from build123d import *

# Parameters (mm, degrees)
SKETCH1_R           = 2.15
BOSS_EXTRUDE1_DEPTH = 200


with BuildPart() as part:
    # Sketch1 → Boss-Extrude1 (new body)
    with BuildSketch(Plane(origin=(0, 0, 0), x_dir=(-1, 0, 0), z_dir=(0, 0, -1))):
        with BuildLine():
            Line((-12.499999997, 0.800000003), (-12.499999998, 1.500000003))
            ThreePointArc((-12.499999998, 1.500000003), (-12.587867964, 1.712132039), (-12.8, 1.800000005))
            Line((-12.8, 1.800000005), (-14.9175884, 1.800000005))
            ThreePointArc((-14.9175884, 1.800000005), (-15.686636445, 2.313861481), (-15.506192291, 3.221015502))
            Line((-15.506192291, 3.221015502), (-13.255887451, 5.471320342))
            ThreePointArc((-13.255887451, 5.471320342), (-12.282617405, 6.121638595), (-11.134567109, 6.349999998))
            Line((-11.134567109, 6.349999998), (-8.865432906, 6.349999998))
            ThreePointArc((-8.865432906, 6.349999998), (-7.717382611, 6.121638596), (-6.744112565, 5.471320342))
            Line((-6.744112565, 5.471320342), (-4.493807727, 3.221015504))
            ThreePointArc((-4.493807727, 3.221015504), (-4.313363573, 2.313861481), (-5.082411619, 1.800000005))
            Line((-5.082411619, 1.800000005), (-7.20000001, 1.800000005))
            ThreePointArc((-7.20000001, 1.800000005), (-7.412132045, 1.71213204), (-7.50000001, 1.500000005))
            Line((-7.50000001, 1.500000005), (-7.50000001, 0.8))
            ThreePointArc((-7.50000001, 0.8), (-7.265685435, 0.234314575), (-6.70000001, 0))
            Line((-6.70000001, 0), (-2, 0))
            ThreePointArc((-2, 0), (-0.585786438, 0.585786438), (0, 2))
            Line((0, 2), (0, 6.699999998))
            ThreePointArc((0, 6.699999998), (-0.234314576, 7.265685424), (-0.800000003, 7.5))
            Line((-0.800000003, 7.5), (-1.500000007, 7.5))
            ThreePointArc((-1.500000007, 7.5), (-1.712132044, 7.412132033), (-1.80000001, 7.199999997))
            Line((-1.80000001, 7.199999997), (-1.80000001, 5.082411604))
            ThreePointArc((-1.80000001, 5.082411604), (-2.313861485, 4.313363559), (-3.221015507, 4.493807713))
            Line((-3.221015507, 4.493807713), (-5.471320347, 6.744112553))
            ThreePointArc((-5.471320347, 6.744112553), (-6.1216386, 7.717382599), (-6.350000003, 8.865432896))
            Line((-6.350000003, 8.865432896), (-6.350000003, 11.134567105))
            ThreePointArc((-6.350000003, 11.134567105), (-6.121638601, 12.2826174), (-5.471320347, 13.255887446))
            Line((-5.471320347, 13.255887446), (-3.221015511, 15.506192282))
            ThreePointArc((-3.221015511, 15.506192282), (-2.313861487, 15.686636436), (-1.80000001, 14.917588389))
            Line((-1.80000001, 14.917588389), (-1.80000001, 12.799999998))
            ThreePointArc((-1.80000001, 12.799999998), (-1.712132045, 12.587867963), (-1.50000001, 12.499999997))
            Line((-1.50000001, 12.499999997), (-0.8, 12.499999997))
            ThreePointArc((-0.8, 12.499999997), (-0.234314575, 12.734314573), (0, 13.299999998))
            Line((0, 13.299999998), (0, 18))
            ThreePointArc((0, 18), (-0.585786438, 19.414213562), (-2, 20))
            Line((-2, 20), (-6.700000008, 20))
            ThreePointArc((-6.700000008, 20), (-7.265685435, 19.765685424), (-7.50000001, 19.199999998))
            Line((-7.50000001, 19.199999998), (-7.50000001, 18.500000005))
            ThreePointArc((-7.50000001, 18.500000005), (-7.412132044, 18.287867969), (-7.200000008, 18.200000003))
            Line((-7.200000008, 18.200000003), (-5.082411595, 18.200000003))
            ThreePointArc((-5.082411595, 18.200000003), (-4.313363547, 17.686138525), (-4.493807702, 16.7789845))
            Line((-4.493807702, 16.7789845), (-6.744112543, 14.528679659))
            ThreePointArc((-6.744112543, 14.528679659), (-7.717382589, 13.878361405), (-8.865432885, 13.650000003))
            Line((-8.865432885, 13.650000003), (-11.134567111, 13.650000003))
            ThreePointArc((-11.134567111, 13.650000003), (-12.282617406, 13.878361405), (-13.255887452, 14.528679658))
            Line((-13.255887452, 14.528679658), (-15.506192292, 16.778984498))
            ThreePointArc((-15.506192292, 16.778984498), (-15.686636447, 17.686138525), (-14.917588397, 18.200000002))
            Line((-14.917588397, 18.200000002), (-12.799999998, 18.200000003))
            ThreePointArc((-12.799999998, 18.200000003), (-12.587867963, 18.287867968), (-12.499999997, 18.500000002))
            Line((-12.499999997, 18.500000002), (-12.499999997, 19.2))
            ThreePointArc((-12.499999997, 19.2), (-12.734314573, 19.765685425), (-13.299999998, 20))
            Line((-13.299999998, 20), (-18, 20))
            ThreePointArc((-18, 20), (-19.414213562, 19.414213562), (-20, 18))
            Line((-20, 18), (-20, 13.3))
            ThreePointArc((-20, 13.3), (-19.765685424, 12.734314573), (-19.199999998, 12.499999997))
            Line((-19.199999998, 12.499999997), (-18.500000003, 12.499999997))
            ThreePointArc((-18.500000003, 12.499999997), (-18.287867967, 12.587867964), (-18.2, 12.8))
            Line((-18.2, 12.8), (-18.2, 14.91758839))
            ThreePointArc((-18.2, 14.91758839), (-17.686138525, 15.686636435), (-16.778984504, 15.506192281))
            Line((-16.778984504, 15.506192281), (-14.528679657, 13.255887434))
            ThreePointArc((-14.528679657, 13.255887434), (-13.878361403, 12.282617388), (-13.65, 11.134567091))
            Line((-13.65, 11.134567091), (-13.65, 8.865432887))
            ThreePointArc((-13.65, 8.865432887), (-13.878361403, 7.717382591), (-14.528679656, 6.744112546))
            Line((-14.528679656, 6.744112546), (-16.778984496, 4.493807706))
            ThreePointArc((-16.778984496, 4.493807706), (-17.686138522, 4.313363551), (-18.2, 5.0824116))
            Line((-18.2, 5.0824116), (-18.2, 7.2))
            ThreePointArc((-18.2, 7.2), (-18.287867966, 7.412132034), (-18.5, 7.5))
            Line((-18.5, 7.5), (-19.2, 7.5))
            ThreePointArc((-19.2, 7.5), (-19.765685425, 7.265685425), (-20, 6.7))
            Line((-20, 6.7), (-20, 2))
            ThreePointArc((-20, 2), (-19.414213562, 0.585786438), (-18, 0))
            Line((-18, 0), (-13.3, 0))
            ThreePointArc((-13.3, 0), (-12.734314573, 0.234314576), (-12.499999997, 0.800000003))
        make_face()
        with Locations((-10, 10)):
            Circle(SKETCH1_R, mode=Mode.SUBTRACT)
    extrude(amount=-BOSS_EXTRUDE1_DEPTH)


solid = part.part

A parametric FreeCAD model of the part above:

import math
import FreeCAD as App
import Part
import Sketcher
from FreeCAD import Vector
Q = App.Units.Quantity

doc = App.newDocument("Part")
body = doc.addObject("PartDesign::Body", "Body")

sketch1 = body.newObject("Sketcher::SketchObject", "Sketch")
sketch1.AttachmentSupport = (doc.getObject("XY_Plane"), [""])
sketch1.MapMode = "FlatFace"
sketch1.addGeometry([
    Part.LineSegment(Vector(12.5, 0.8, 0), Vector(12.5, 1.5, 0)),
    Part.ArcOfCircle(Part.Circle(Vector(12.8, 1.5, 0), Vector(0, 0, 1), 0.3), math.radians(90), math.radians(180)),
    Part.LineSegment(Vector(12.8, 1.8, 0), Vector(14.917588, 1.8, 0)),
    Part.ArcOfCircle(Part.Circle(Vector(14.917588, 2.632412, 0), Vector(0, 0, 1), 0.832412), math.radians(-90), math.radians(45)),
    Part.LineSegment(Vector(15.506192, 3.221016, 0), Vector(13.255887, 5.47132, 0)),
    Part.ArcOfCircle(Part.Circle(Vector(11.134567, 3.35, 0), Vector(0, 0, 1), 3), math.radians(45), math.radians(90)),
    Part.LineSegment(Vector(11.134567, 6.35, 0), Vector(8.865433, 6.35, 0)),
    Part.ArcOfCircle(Part.Circle(Vector(8.865433, 3.35, 0), Vector(0, 0, 1), 3), math.radians(90), math.radians(135)),
    Part.LineSegment(Vector(6.744113, 5.47132, 0), Vector(4.493808, 3.221016, 0)),
    Part.ArcOfCircle(Part.Circle(Vector(5.082412, 2.632412, 0), Vector(0, 0, 1), 0.832412), math.radians(135), math.radians(270)),
    Part.LineSegment(Vector(5.082412, 1.8, 0), Vector(7.2, 1.8, 0)),
    Part.ArcOfCircle(Part.Circle(Vector(7.2, 1.5, 0), Vector(0, 0, 1), 0.3), math.radians(0), math.radians(90)),
    Part.LineSegment(Vector(7.5, 1.5, 0), Vector(7.5, 0.8, 0)),
    Part.ArcOfCircle(Part.Circle(Vector(6.7, 0.8, 0), Vector(0, 0, 1), 0.8), math.radians(-90), math.radians(0)),
    Part.LineSegment(Vector(6.7, 0, 0), Vector(2, 0, 0)),
    Part.ArcOfCircle(Part.Circle(Vector(2, 2, 0), Vector(0, 0, 1), 2), math.radians(-180), math.radians(-90)),
    Part.LineSegment(Vector(0, 2, 0), Vector(0, 6.7, 0)),
    Part.ArcOfCircle(Part.Circle(Vector(0.8, 6.7, 0), Vector(0, 0, 1), 0.8), math.radians(90), math.radians(180)),
    Part.LineSegment(Vector(0.8, 7.5, 0), Vector(1.5, 7.5, 0)),
    Part.ArcOfCircle(Part.Circle(Vector(1.5, 7.2, 0), Vector(0, 0, 1), 0.3), math.radians(0), math.radians(90)),
    Part.LineSegment(Vector(1.8, 7.2, 0), Vector(1.8, 5.082412, 0)),
    Part.ArcOfCircle(Part.Circle(Vector(2.632412, 5.082412, 0), Vector(0, 0, 1), 0.832412), math.radians(180), math.radians(315)),
    Part.LineSegment(Vector(3.221016, 4.493808, 0), Vector(5.47132, 6.744113, 0)),
    Part.ArcOfCircle(Part.Circle(Vector(3.35, 8.865433, 0), Vector(0, 0, 1), 3), math.radians(-45), math.radians(0)),
    Part.LineSegment(Vector(6.35, 8.865433, 0), Vector(6.35, 11.134567, 0)),
    Part.ArcOfCircle(Part.Circle(Vector(3.35, 11.134567, 0), Vector(0, 0, 1), 3), math.radians(0), math.radians(45)),
    Part.LineSegment(Vector(5.47132, 13.255887, 0), Vector(3.221016, 15.506192, 0)),
    Part.ArcOfCircle(Part.Circle(Vector(2.632412, 14.917588, 0), Vector(0, 0, 1), 0.832412), math.radians(45), math.radians(180)),
    Part.LineSegment(Vector(1.8, 14.917588, 0), Vector(1.8, 12.8, 0)),
    Part.ArcOfCircle(Part.Circle(Vector(1.5, 12.8, 0), Vector(0, 0, 1), 0.3), math.radians(-90), math.radians(0)),
    Part.LineSegment(Vector(1.5, 12.5, 0), Vector(0.8, 12.5, 0)),
    Part.ArcOfCircle(Part.Circle(Vector(0.8, 13.3, 0), Vector(0, 0, 1), 0.8), math.radians(-180), math.radians(-90)),
    Part.LineSegment(Vector(0, 13.3, 0), Vector(0, 18, 0)),
    Part.ArcOfCircle(Part.Circle(Vector(2, 18, 0), Vector(0, 0, 1), 2), math.radians(90), math.radians(180)),
    Part.LineSegment(Vector(2, 20, 0), Vector(6.7, 20, 0)),
    Part.ArcOfCircle(Part.Circle(Vector(6.7, 19.2, 0), Vector(0, 0, 1), 0.8), math.radians(0), math.radians(90)),
    Part.LineSegment(Vector(7.5, 19.2, 0), Vector(7.5, 18.5, 0)),
    Part.ArcOfCircle(Part.Circle(Vector(7.2, 18.5, 0), Vector(0, 0, 1), 0.3), math.radians(-90), math.radians(0)),
    Part.LineSegment(Vector(7.2, 18.2, 0), Vector(5.082412, 18.2, 0)),
    Part.ArcOfCircle(Part.Circle(Vector(5.082412, 17.367588, 0), Vector(0, 0, 1), 0.832412), math.radians(90), math.radians(225)),
    Part.LineSegment(Vector(4.493808, 16.778984, 0), Vector(6.744113, 14.52868, 0)),
    Part.ArcOfCircle(Part.Circle(Vector(8.865433, 16.65, 0), Vector(0, 0, 1), 3), math.radians(-135), math.radians(-90)),
    Part.LineSegment(Vector(8.865433, 13.65, 0), Vector(11.134567, 13.65, 0)),
    Part.ArcOfCircle(Part.Circle(Vector(11.134567, 16.65, 0), Vector(0, 0, 1), 3), math.radians(-90), math.radians(-45)),
    Part.LineSegment(Vector(13.255887, 14.52868, 0), Vector(15.506192, 16.778984, 0)),
    Part.ArcOfCircle(Part.Circle(Vector(14.917588, 17.367588, 0), Vector(0, 0, 1), 0.832412), math.radians(-45), math.radians(90)),
    Part.LineSegment(Vector(14.917588, 18.2, 0), Vector(12.8, 18.2, 0)),
    Part.ArcOfCircle(Part.Circle(Vector(12.8, 18.5, 0), Vector(0, 0, 1), 0.3), math.radians(-180), math.radians(-90)),
    Part.LineSegment(Vector(12.5, 18.5, 0), Vector(12.5, 19.2, 0)),
    Part.ArcOfCircle(Part.Circle(Vector(13.3, 19.2, 0), Vector(0, 0, 1), 0.8), math.radians(90), math.radians(180)),
    Part.LineSegment(Vector(13.3, 20, 0), Vector(18, 20, 0)),
    Part.ArcOfCircle(Part.Circle(Vector(18, 18, 0), Vector(0, 0, 1), 2), math.radians(0), math.radians(90)),
    Part.LineSegment(Vector(20, 18, 0), Vector(20, 13.3, 0)),
    Part.ArcOfCircle(Part.Circle(Vector(19.2, 13.3, 0), Vector(0, 0, 1), 0.8), math.radians(-90), math.radians(0)),
    Part.LineSegment(Vector(19.2, 12.5, 0), Vector(18.5, 12.5, 0)),
    Part.ArcOfCircle(Part.Circle(Vector(18.5, 12.8, 0), Vector(0, 0, 1), 0.3), math.radians(-180), math.radians(-90)),
    Part.LineSegment(Vector(18.2, 12.8, 0), Vector(18.2, 14.917588, 0)),
    Part.ArcOfCircle(Part.Circle(Vector(17.367588, 14.917588, 0), Vector(0, 0, 1), 0.832412), math.radians(0), math.radians(135)),
    Part.LineSegment(Vector(16.778985, 15.506192, 0), Vector(14.52868, 13.255887, 0)),
    Part.ArcOfCircle(Part.Circle(Vector(16.65, 11.134567, 0), Vector(0, 0, 1), 3), math.radians(135), math.radians(180)),
    Part.LineSegment(Vector(13.65, 11.134567, 0), Vector(13.65, 8.865433, 0)),
    Part.ArcOfCircle(Part.Circle(Vector(16.65, 8.865433, 0), Vector(0, 0, 1), 3), math.radians(-180), math.radians(-135)),
    Part.LineSegment(Vector(14.52868, 6.744113, 0), Vector(16.778984, 4.493808, 0)),
    Part.ArcOfCircle(Part.Circle(Vector(17.367588, 5.082412, 0), Vector(0, 0, 1), 0.832412), math.radians(-135), math.radians(0)),
    Part.LineSegment(Vector(18.2, 5.082412, 0), Vector(18.2, 7.2, 0)),
    Part.ArcOfCircle(Part.Circle(Vector(18.5, 7.2, 0), Vector(0, 0, 1), 0.3), math.radians(90), math.radians(180)),
    Part.LineSegment(Vector(18.5, 7.5, 0), Vector(19.2, 7.5, 0)),
    Part.ArcOfCircle(Part.Circle(Vector(19.2, 6.7, 0), Vector(0, 0, 1), 0.8), math.radians(0), math.radians(90)),
    Part.LineSegment(Vector(20, 6.7, 0), Vector(20, 2, 0)),
    Part.ArcOfCircle(Part.Circle(Vector(18, 2, 0), Vector(0, 0, 1), 2), math.radians(-90), math.radians(0)),
    Part.LineSegment(Vector(18, 0, 0), Vector(13.3, 0, 0)),
    Part.ArcOfCircle(Part.Circle(Vector(13.3, 0.8, 0), Vector(0, 0, 1), 0.8), math.radians(180), math.radians(270)),
    Part.Circle(Vector(10, 10, 0), Vector(0, 0, 1), 2.15),
], False)
sketch1.addConstraint([
    Sketcher.Constraint("Tangent", 0, 2, 1, 2),
    Sketcher.Constraint("Tangent", 1, 1, 2, 1),
    Sketcher.Constraint("Tangent", 2, 2, 3, 1),
    Sketcher.Constraint("Tangent", 3, 2, 4, 1),
    Sketcher.Constraint("Tangent", 4, 2, 5, 1),
    Sketcher.Constraint("Tangent", 5, 2, 6, 1),
    Sketcher.Constraint("Tangent", 6, 2, 7, 1),
    Sketcher.Constraint("Tangent", 7, 2, 8, 1),
    Sketcher.Constraint("Tangent", 8, 2, 9, 1),
    Sketcher.Constraint("Tangent", 9, 2, 10, 1),
    Sketcher.Constraint("Tangent", 10, 2, 11, 2),
    Sketcher.Constraint("Tangent", 11, 1, 12, 1),
    Sketcher.Constraint("Tangent", 12, 2, 13, 2),
    Sketcher.Constraint("Tangent", 13, 1, 14, 1),
    Sketcher.Constraint("Tangent", 14, 2, 15, 2),
    Sketcher.Constraint("Tangent", 15, 1, 16, 1),
    Sketcher.Constraint("Tangent", 16, 2, 17, 2),
    Sketcher.Constraint("Tangent", 17, 1, 18, 1),
    Sketcher.Constraint("Tangent", 18, 2, 19, 2),
    Sketcher.Constraint("Tangent", 19, 1, 20, 1),
    Sketcher.Constraint("Tangent", 20, 2, 21, 1),
    Sketcher.Constraint("Tangent", 21, 2, 22, 1),
    Sketcher.Constraint("Tangent", 22, 2, 23, 1),
    Sketcher.Constraint("Tangent", 23, 2, 24, 1),
    Sketcher.Constraint("Tangent", 24, 2, 25, 1),
    Sketcher.Constraint("Tangent", 25, 2, 26, 1),
    Sketcher.Constraint("Tangent", 26, 2, 27, 1),
    Sketcher.Constraint("Tangent", 27, 2, 28, 1),
    Sketcher.Constraint("Tangent", 28, 2, 29, 2),
    Sketcher.Constraint("Tangent", 29, 1, 30, 1),
    Sketcher.Constraint("Tangent", 30, 2, 31, 2),
    Sketcher.Constraint("Tangent", 31, 1, 32, 1),
    Sketcher.Constraint("Tangent", 32, 2, 33, 2),
    Sketcher.Constraint("Tangent", 33, 1, 34, 1),
    Sketcher.Constraint("Tangent", 34, 2, 35, 2),
    Sketcher.Constraint("Tangent", 35, 1, 36, 1),
    Sketcher.Constraint("Tangent", 36, 2, 37, 2),
    Sketcher.Constraint("Tangent", 37, 1, 38, 1),
    Sketcher.Constraint("Tangent", 38, 2, 39, 1),
    Sketcher.Constraint("Tangent", 39, 2, 40, 1),
    Sketcher.Constraint("Tangent", 40, 2, 41, 1),
    Sketcher.Constraint("Tangent", 41, 2, 42, 1),
    Sketcher.Constraint("Tangent", 42, 2, 43, 1),
    Sketcher.Constraint("Tangent", 43, 2, 44, 1),
    Sketcher.Constraint("Tangent", 44, 2, 45, 1),
    Sketcher.Constraint("Tangent", 45, 2, 46, 1),
    Sketcher.Constraint("Tangent", 46, 2, 47, 2),
    Sketcher.Constraint("Tangent", 47, 1, 48, 1),
    Sketcher.Constraint("Tangent", 48, 2, 49, 2),
    Sketcher.Constraint("Tangent", 49, 1, 50, 1),
    Sketcher.Constraint("Tangent", 50, 2, 51, 2),
    Sketcher.Constraint("Tangent", 51, 1, 52, 1),
    Sketcher.Constraint("Tangent", 52, 2, 53, 2),
    Sketcher.Constraint("Tangent", 53, 1, 54, 1),
    Sketcher.Constraint("Tangent", 54, 2, 55, 2),
    Sketcher.Constraint("Tangent", 55, 1, 56, 1),
    Sketcher.Constraint("Tangent", 56, 2, 57, 1),
    Sketcher.Constraint("Tangent", 57, 2, 58, 1),
    Sketcher.Constraint("Tangent", 58, 2, 59, 1),
    Sketcher.Constraint("Tangent", 59, 2, 60, 1),
    Sketcher.Constraint("Tangent", 60, 2, 61, 1),
    Sketcher.Constraint("Tangent", 61, 2, 62, 1),
    Sketcher.Constraint("Tangent", 62, 2, 63, 1),
    Sketcher.Constraint("Tangent", 63, 2, 64, 1),
    Sketcher.Constraint("Tangent", 64, 2, 65, 2),
    Sketcher.Constraint("Tangent", 65, 1, 66, 1),
    Sketcher.Constraint("Tangent", 66, 2, 67, 2),
    Sketcher.Constraint("Tangent", 67, 1, 68, 1),
    Sketcher.Constraint("Tangent", 68, 2, 69, 2),
    Sketcher.Constraint("Tangent", 69, 1, 70, 1),
    Sketcher.Constraint("Tangent", 70, 2, 71, 2),
    Sketcher.Constraint("Tangent", 71, 1, 0, 1),
    Sketcher.Constraint("Vertical", 0),
    Sketcher.Constraint("Horizontal", 2),
    Sketcher.Constraint("Horizontal", 6),
    Sketcher.Constraint("Horizontal", 10),
    Sketcher.Constraint("Vertical", 12),
    Sketcher.Constraint("Horizontal", 14),
    Sketcher.Constraint("Vertical", 16),
    Sketcher.Constraint("Horizontal", 18),
    Sketcher.Constraint("Vertical", 20),
    Sketcher.Constraint("Vertical", 24),
    Sketcher.Constraint("Vertical", 28),
    Sketcher.Constraint("Horizontal", 30),
    Sketcher.Constraint("Vertical", 32),
    Sketcher.Constraint("Horizontal", 34),
    Sketcher.Constraint("Vertical", 36),
    Sketcher.Constraint("Horizontal", 38),
    Sketcher.Constraint("Horizontal", 42),
    Sketcher.Constraint("Horizontal", 46),
    Sketcher.Constraint("Vertical", 48),
    Sketcher.Constraint("Horizontal", 50),
    Sketcher.Constraint("Vertical", 52),
    Sketcher.Constraint("Horizontal", 54),
    Sketcher.Constraint("Vertical", 56),
    Sketcher.Constraint("Vertical", 60),
    Sketcher.Constraint("Vertical", 64),
    Sketcher.Constraint("Horizontal", 66),
    Sketcher.Constraint("Vertical", 68),
    Sketcher.Constraint("Horizontal", 70),
    Sketcher.Constraint("Equal", 5, 7),
    Sketcher.Constraint("Equal", 3, 9),
    Sketcher.Constraint("Equal", 1, 11),
    Sketcher.Constraint("Equal", 13, 17),
    Sketcher.Constraint("Equal", 11, 19),
    Sketcher.Constraint("Equal", 9, 21),
    Sketcher.Constraint("Equal", 7, 23),
    Sketcher.Constraint("Equal", 23, 25),
    Sketcher.Constraint("Equal", 21, 27),
    Sketcher.Constraint("Equal", 19, 29),
    Sketcher.Constraint("Equal", 17, 31),
    Sketcher.Constraint("Equal", 15, 33),
    Sketcher.Constraint("Equal", 31, 35),
    Sketcher.Constraint("Equal", 29, 37),
    Sketcher.Constraint("Equal", 27, 39),
    Sketcher.Constraint("Equal", 25, 41),
    Sketcher.Constraint("Equal", 41, 43),
    Sketcher.Constraint("Equal", 39, 45),
    Sketcher.Constraint("Equal", 37, 47),
    Sketcher.Constraint("Equal", 35, 49),
    Sketcher.Constraint("Equal", 33, 51),
    Sketcher.Constraint("Equal", 49, 53),
    Sketcher.Constraint("Equal", 47, 55),
    Sketcher.Constraint("Equal", 45, 57),
    Sketcher.Constraint("Equal", 43, 59),
    Sketcher.Constraint("Equal", 59, 61),
    Sketcher.Constraint("Equal", 57, 63),
    Sketcher.Constraint("Equal", 55, 65),
    Sketcher.Constraint("Equal", 53, 67),
    Sketcher.Constraint("Equal", 51, 69),
    Sketcher.Constraint("Equal", 67, 71),
    Sketcher.Constraint("PointOnObject", 13, 1, -1),
    Sketcher.Constraint("PointOnObject", 15, 1, -2),
    Sketcher.Constraint("PointOnObject", 31, 1, -2),
    Sketcher.Constraint("PointOnObject", 69, 1, -1),
    Sketcher.Constraint("Perpendicular", 4, 8),
    Sketcher.Constraint("Parallel", 8, 22),
    Sketcher.Constraint("Perpendicular", 22, 26),
    Sketcher.Constraint("Parallel", 26, 40),
    Sketcher.Constraint("Perpendicular", 40, 44),
    Sketcher.Constraint("Parallel", 44, 58),
    Sketcher.Constraint("Perpendicular", 58, 62),
    Sketcher.Constraint("Horizontal", 3, 3, 9, 3),
    Sketcher.Constraint("Horizontal", 39, 3, 45, 3),
    Sketcher.Constraint("Horizontal", 35, 3, 49, 3),
    Sketcher.Constraint("Horizontal", 31, 3, 53, 3),
    Sketcher.Constraint("Horizontal", 27, 3, 57, 3),
    Sketcher.Constraint("Horizontal", 25, 3, 59, 3),
    Sketcher.Constraint("Horizontal", 23, 3, 61, 3),
    Sketcher.Constraint("Horizontal", 21, 3, 63, 3),
    Sketcher.Constraint("Horizontal", 19, 3, 65, 3),
    Sketcher.Constraint("Horizontal", 4, 2, 7, 2),
    Sketcher.Constraint("Vertical", 21, 3, 27, 3),
    Sketcher.Constraint("Vertical", 13, 3, 35, 3),
    Sketcher.Constraint("Vertical", 9, 3, 39, 3),
    Sketcher.Constraint("Vertical", 7, 3, 41, 3),
    Sketcher.Constraint("Vertical", 5, 3, 43, 3),
    Sketcher.Constraint("Vertical", 1, 3, 47, 3),
    Sketcher.Constraint("Vertical", 53, 3, 67, 3),
    Sketcher.Constraint("Equal", 2, 10),
    Sketcher.Constraint("Equal", 34, 50),
    Sketcher.Constraint("Equal", 30, 54),
    Sketcher.Constraint("Equal", 66, 0),
    Sketcher.Constraint("Equal", 70, 16),
    Sketcher.Constraint("Equal", 46, 20),
    Sketcher.Constraint("Equal", 42, 24),
    Sketcher.Constraint("Equal", 20, 28),
    Sketcher.Constraint("Equal", 16, 32),
    Sketcher.Constraint("Equal", 12, 36),
    Sketcher.Constraint("Equal", 8, 22),
    Sketcher.Constraint("Radius", 5, Q("3 mm")),
    Sketcher.Constraint("Radius", 15, Q("2 mm")),
    Sketcher.Constraint("Diameter", 72, Q("4.3 mm")),
    Sketcher.Constraint("Radius", 1, Q("0.3 mm")),
    Sketcher.Constraint("Radius", 13, Q("0.8 mm")),
    Sketcher.Constraint("DistanceX", 14, 2, 14, 1, Q("4.7 mm")),
    Sketcher.Constraint("DistanceX", 18, 1, 18, 2, Q("0.7 mm")),
    Sketcher.Constraint("DistanceY", -1, 1, 33, 3, Q("18 mm")),
    Sketcher.Constraint("DistanceX", -1, 1, 72, 3, Q("10 mm")),
    Sketcher.Constraint("DistanceY", -1, 1, 72, 3, Q("10 mm")),
    Sketcher.Constraint("DistanceY", -1, 1, 5, 3, Q("3.35 mm")),
    Sketcher.Constraint("Radius", 3, Q("0.832412 mm")),
    Sketcher.Constraint("DistanceX", 2, 1, 2, 2, Q("2.117588 mm")),
])
pad1 = body.newObject("PartDesign::Pad", "Pad")
pad1.Profile = sketch1
pad1.Length = 200

doc.recompute()
